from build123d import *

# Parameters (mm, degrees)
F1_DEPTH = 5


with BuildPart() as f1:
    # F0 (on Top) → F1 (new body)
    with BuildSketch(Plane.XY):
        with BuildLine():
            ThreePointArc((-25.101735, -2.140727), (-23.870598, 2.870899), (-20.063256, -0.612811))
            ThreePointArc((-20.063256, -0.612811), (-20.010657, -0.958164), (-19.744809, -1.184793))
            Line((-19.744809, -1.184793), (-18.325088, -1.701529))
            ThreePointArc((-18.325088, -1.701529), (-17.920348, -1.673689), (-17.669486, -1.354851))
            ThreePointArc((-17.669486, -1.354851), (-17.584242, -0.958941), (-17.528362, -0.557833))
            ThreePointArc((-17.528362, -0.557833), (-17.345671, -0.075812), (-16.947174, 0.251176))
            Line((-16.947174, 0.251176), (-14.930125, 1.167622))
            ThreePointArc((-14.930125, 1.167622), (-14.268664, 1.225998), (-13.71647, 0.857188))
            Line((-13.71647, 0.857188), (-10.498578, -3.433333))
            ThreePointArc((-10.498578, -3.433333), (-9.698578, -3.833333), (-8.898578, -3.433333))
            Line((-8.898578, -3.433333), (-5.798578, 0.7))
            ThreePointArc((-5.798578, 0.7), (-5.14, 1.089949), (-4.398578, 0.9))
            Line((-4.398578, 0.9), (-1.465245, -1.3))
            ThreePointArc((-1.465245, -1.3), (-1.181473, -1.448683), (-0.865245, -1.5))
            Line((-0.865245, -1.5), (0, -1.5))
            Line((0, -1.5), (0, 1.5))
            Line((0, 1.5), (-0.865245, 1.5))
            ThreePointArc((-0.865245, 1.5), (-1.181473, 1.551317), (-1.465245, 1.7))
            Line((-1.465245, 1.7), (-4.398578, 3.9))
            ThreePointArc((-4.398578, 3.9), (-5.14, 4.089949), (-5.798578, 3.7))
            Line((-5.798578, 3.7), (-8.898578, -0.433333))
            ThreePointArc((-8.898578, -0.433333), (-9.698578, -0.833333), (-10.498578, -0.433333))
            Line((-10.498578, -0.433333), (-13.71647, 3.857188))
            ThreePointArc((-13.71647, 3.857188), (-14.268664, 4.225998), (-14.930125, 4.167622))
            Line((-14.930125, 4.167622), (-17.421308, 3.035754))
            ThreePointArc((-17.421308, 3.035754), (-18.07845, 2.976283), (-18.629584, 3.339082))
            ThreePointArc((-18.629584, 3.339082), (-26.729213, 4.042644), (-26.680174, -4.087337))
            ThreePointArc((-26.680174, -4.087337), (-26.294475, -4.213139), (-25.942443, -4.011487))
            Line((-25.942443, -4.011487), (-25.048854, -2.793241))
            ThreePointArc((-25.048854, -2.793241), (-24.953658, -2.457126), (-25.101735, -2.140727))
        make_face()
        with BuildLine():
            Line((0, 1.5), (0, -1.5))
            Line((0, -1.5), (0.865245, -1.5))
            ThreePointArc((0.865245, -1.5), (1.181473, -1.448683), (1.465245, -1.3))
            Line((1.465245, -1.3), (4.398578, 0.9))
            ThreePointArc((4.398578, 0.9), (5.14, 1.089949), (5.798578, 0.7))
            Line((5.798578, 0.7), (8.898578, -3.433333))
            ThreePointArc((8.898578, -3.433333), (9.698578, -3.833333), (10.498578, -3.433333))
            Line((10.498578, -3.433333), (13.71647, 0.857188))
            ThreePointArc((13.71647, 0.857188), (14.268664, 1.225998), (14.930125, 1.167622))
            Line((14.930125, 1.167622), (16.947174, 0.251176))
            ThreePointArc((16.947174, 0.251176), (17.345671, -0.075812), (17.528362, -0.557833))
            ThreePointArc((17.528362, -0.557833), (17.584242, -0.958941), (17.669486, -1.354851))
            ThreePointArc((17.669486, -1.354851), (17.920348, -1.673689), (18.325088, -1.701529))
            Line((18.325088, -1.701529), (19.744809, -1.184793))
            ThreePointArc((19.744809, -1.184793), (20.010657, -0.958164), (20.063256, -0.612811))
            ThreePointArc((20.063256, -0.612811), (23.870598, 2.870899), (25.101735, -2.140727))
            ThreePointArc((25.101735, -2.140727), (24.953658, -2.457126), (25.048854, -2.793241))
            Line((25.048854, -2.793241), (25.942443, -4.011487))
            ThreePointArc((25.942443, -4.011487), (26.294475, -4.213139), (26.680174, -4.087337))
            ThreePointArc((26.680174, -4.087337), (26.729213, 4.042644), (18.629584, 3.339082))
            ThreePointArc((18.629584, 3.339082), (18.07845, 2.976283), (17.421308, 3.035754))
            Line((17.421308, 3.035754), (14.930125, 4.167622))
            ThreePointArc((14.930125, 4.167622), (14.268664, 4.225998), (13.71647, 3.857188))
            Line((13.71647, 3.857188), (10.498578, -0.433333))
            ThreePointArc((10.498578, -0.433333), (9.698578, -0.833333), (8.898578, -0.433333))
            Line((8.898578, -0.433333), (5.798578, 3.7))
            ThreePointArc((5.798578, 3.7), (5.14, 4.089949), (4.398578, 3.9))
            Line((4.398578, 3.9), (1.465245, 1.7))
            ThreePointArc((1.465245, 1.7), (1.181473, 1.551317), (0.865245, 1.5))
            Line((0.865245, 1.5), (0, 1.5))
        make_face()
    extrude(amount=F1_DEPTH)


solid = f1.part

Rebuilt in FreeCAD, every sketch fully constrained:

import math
import FreeCAD as App
import Part
import Sketcher
from FreeCAD import Vector
Q = App.Units.Quantity

doc = App.newDocument("Part")
body = doc.addObject("PartDesign::Body", "Body")

# Sketch on XY plane
sketch1 = body.newObject("Sketcher::SketchObject", "Sketch")
sketch1.AttachmentSupport = (doc.getObject("XY_Plane"), [""])
sketch1.MapMode = "FlatFace"
sketch1.addGeometry([
    Part.ArcOfCircle(Part.Circle(Vector(-23, 0, 0), Vector(0, 0, 1), 3), math.radians(-12), math.radians(226)),  # 0
    Part.ArcOfCircle(Part.Circle(Vector(-19.57, -0.71, 0), Vector(0, 0, 1), 0.5), math.radians(168), math.radians(250)),  # 1
    Part.LineSegment(Vector(-19.74, -1.18, 0), Vector(-18.33, -1.7, 0)),  # 2
    Part.ArcOfCircle(Part.Circle(Vector(-18.15, -1.23, 0), Vector(0, 0, 1), 0.5), math.radians(-110), math.radians(-14)),  # 3
    Part.ArcOfCircle(Part.Circle(Vector(-23, 0, 0), Vector(0, 0, 1), 5.5), math.radians(-14.26), math.radians(-5.82)),  # 4
    Part.ArcOfCircle(Part.Circle(Vector(-16.53, -0.66, 0), Vector(0, 0, 1), 1), math.radians(114), math.radians(174)),  # 5
    Part.LineSegment(Vector(-16.95, 0.25, 0), Vector(-14.93, 1.17, 0)),  # 6
    Part.ArcOfCircle(Part.Circle(Vector(-14.52, 0.26, 0), Vector(0, 0, 1), 1), math.radians(37), math.radians(114)),  # 7
    Part.LineSegment(Vector(-13.72, 0.86, 0), Vector(-10.5, -3.43, 0)),  # 8
    Part.ArcOfCircle(Part.Circle(Vector(-9.7, -2.83, 0), Vector(0, 0, 1), 1), math.radians(-143), math.radians(-37)),  # 9
    Part.LineSegment(Vector(-8.9, -3.43, 0), Vector(-5.8, 0.7, 0)),  # 10
    Part.ArcOfCircle(Part.Circle(Vector(-5, 0.1, 0), Vector(0, 0, 1), 1), math.radians(53), math.radians(143)),  # 11
    Part.LineSegment(Vector(-4.4, 0.9, 0), Vector(-1.47, -1.3, 0)),  # 12
    Part.ArcOfCircle(Part.Circle(Vector(-0.87, -0.5, 0), Vector(0, 0, 1), 1), math.radians(-127), math.radians(-90)),  # 13
    Part.LineSegment(Vector(-0.87, -1.5, 0), Vector(0.87, -1.5, 0)),  # 14
    Part.ArcOfCircle(Part.Circle(Vector(0.87, -0.5, 0), Vector(0, 0, 1), 1), math.radians(-90), math.radians(-53)),  # 15
    Part.LineSegment(Vector(1.47, -1.3, 0), Vector(4.4, 0.9, 0)),  # 16
    Part.ArcOfCircle(Part.Circle(Vector(5, 0.1, 0), Vector(0, 0, 1), 1), math.radians(37), math.radians(127)),  # 17
    Part.LineSegment(Vector(5.8, 0.7, 0), Vector(8.9, -3.43, 0)),  # 18
    Part.ArcOfCircle(Part.Circle(Vector(9.7, -2.83, 0), Vector(0, 0, 1), 1), math.radians(-143), math.radians(-37)),  # 19
    Part.LineSegment(Vector(10.5, -3.43, 0), Vector(13.72, 0.86, 0)),  # 20
    Part.ArcOfCircle(Part.Circle(Vector(14.52, 0.26, 0), Vector(0, 0, 1), 1), math.radians(66), math.radians(143)),  # 21
    Part.LineSegment(Vector(14.93, 1.17, 0), Vector(16.95, 0.25, 0)),  # 22
    Part.ArcOfCircle(Part.Circle(Vector(16.53, -0.66, 0), Vector(0, 0, 1), 1), math.radians(6), math.radians(66)),  # 23
    Part.ArcOfCircle(Part.Circle(Vector(23, 0, 0), Vector(0, 0, 1), 5.5), math.radians(-174.18), math.radians(-165.74)),  # 24
    Part.ArcOfCircle(Part.Circle(Vector(18.15, -1.23, 0), Vector(0, 0, 1), 0.5), math.radians(-166), math.radians(-70)),  # 25
    Part.LineSegment(Vector(18.33, -1.7, 0), Vector(19.74, -1.18, 0)),  # 26
    Part.ArcOfCircle(Part.Circle(Vector(19.57, -0.71, 0), Vector(0, 0, 1), 0.5), math.radians(-70), math.radians(12)),  # 27
    Part.ArcOfCircle(Part.Circle(Vector(23, 0, 0), Vector(0, 0, 1), 3), math.radians(-46), math.radians(192)),  # 28
    Part.ArcOfCircle(Part.Circle(Vector(25.45, -2.5, 0), Vector(0, 0, 1), 0.5), math.radians(134), math.radians(216)),  # 29
    Part.LineSegment(Vector(25.05, -2.79, 0), Vector(25.94, -4.01, 0)),  # 30
    Part.ArcOfCircle(Part.Circle(Vector(26.35, -3.72, 0), Vector(0, 0, 1), 0.5), math.radians(-144), math.radians(-48)),  # 31
    Part.ArcOfCircle(Part.Circle(Vector(23, 0, 0), Vector(0, 0, 1), 5.5), math.radians(-48), math.radians(143)),  # 32
    Part.ArcOfCircle(Part.Circle(Vector(17.83, 3.95, 0), Vector(0, 0, 1), 1), math.radians(-114), math.radians(-37)),  # 33
    Part.LineSegment(Vector(17.42, 3.04, 0), Vector(14.93, 4.17, 0)),  # 34
    Part.ArcOfCircle(Part.Circle(Vector(14.52, 3.26, 0), Vector(0, 0, 1), 1), math.radians(66), math.radians(143)),  # 35
    Part.LineSegment(Vector(13.72, 3.86, 0), Vector(10.5, -0.43, 0)),  # 36
    Part.ArcOfCircle(Part.Circle(Vector(9.7, 0.17, 0), Vector(0, 0, 1), 1), math.radians(-143), math.radians(-37)),  # 37
    Part.LineSegment(Vector(8.9, -0.43, 0), Vector(5.8, 3.7, 0)),  # 38
    Part.ArcOfCircle(Part.Circle(Vector(5, 3.1, 0), Vector(0, 0, 1), 1), math.radians(37), math.radians(127)),  # 39
    Part.LineSegment(Vector(4.4, 3.9, 0), Vector(1.47, 1.7, 0)),  # 40
    Part.ArcOfCircle(Part.Circle(Vector(0.87, 2.5, 0), Vector(0, 0, 1), 1), math.radians(-90), math.radians(-53)),  # 41
    Part.LineSegment(Vector(0.87, 1.5, 0), Vector(-0.87, 1.5, 0)),  # 42
    Part.ArcOfCircle(Part.Circle(Vector(-0.87, 2.5, 0), Vector(0, 0, 1), 1), math.radians(-127), math.radians(-90)),  # 43
    Part.LineSegment(Vector(-1.47, 1.7, 0), Vector(-4.4, 3.9, 0)),  # 44
    Part.ArcOfCircle(Part.Circle(Vector(-5, 3.1, 0), Vector(0, 0, 1), 1), math.radians(53), math.radians(143)),  # 45
    Part.LineSegment(Vector(-5.8, 3.7, 0), Vector(-8.9, -0.43, 0)),  # 46
    Part.ArcOfCircle(Part.Circle(Vector(-9.7, 0.17, 0), Vector(0, 0, 1), 1), math.radians(-143), math.radians(-37)),  # 47
    Part.LineSegment(Vector(-10.5, -0.43, 0), Vector(-13.72, 3.86, 0)),  # 48
    Part.ArcOfCircle(Part.Circle(Vector(-14.52, 3.26, 0), Vector(0, 0, 1), 1), math.radians(37), math.radians(114)),  # 49
    Part.LineSegment(Vector(-14.93, 4.17, 0), Vector(-17.42, 3.04, 0)),  # 50
    Part.ArcOfCircle(Part.Circle(Vector(-17.83, 3.95, 0), Vector(0, 0, 1), 1), math.radians(-143), math.radians(-66)),  # 51
    Part.ArcOfCircle(Part.Circle(Vector(-23, 0, 0), Vector(0, 0, 1), 5.5), math.radians(37), math.radians(228)),  # 52
    Part.ArcOfCircle(Part.Circle(Vector(-26.35, -3.72, 0), Vector(0, 0, 1), 0.5), math.radians(-132), math.radians(-36)),  # 53
    Part.LineSegment(Vector(-25.94, -4.01, 0), Vector(-25.05, -2.79, 0)),  # 54
    Part.ArcOfCircle(Part.Circle(Vector(-25.45, -2.5, 0), Vector(0, 0, 1), 0.5), math.radians(-36), math.radians(46)),  # 55
], False)
sketch1.addConstraint([
    Sketcher.Constraint("Tangent", 0, 1, 1, 1),
    Sketcher.Constraint("Tangent", 1, 2, 2, 1),
    Sketcher.Constraint("Coincident", 2, 2, 3, 1),
    Sketcher.Constraint("Tangent", 3, 2, 4, 1),
    Sketcher.Constraint("Tangent", 4, 2, 5, 2),
    Sketcher.Constraint("Tangent", 5, 1, 6, 1),
    Sketcher.Constraint("Tangent", 6, 2, 7, 2),
    Sketcher.Constraint("Tangent", 7, 1, 8, 1),
    Sketcher.Constraint("Tangent", 8, 2, 9, 1),
    Sketcher.Constraint("Tangent", 9, 2, 10, 1),
    Sketcher.Constraint("Tangent", 10, 2, 11, 2),
    Sketcher.Constraint("Tangent", 11, 1, 12, 1),
    Sketcher.Constraint("Tangent", 12, 2, 13, 1),
    Sketcher.Constraint("Tangent", 13, 2, 14, 1),
    Sketcher.Constraint("Tangent", 14, 2, 15, 1),
    Sketcher.Constraint("Tangent", 15, 2, 16, 1),
    Sketcher.Constraint("Tangent", 16, 2, 17, 2),
    Sketcher.Constraint("Tangent", 17, 1, 18, 1),
    Sketcher.Constraint("Tangent", 18, 2, 19, 1),
    Sketcher.Constraint("Tangent", 19, 2, 20, 1),
    Sketcher.Constraint("Tangent", 20, 2, 21, 2),
    Sketcher.Constraint("Tangent", 21, 1, 22, 1),
    Sketcher.Constraint("Tangent", 22, 2, 23, 2),
    Sketcher.Constraint("Tangent", 23, 1, 24, 1),
    Sketcher.Constraint("Tangent", 24, 2, 25, 1),
    Sketcher.Constraint("Coincident", 25, 2, 26, 1),
    Sketcher.Constraint("Tangent", 26, 2, 27, 1),
    Sketcher.Constraint("Tangent", 27, 2, 28, 2),
    Sketcher.Constraint("Tangent", 28, 1, 29, 1),
    Sketcher.Constraint("Tangent", 29, 2, 30, 1),
    Sketcher.Constraint("Coincident", 30, 2, 31, 1),
    Sketcher.Constraint("Tangent", 31, 2, 32, 1),
    Sketcher.Constraint("Tangent", 32, 2, 33, 2),
    Sketcher.Constraint("Tangent", 33, 1, 34, 1),
    Sketcher.Constraint("Tangent", 34, 2, 35, 1),
    Sketcher.Constraint("Tangent", 35, 2, 36, 1),
    Sketcher.Constraint("Tangent", 36, 2, 37, 2),
    Sketcher.Constraint("Tangent", 37, 1, 38, 1),
    Sketcher.Constraint("Tangent", 38, 2, 39, 1),
    Sketcher.Constraint("Tangent", 39, 2, 40, 1),
    Sketcher.Constraint("Tangent", 40, 2, 41, 2),
    Sketcher.Constraint("Tangent", 41, 1, 42, 1),
    Sketcher.Constraint("Tangent", 42, 2, 43, 2),
    Sketcher.Constraint("Tangent", 43, 1, 44, 1),
    Sketcher.Constraint("Tangent", 44, 2, 45, 1),
    Sketcher.Constraint("Tangent", 45, 2, 46, 1),
    Sketcher.Constraint("Tangent", 46, 2, 47, 2),
    Sketcher.Constraint("Tangent", 47, 1, 48, 1),
    Sketcher.Constraint("Tangent", 48, 2, 49, 1),
    Sketcher.Constraint("Tangent", 49, 2, 50, 1),
    Sketcher.Constraint("Tangent", 50, 2, 51, 2),
    Sketcher.Constraint("Tangent", 51, 1, 52, 1),
    Sketcher.Constraint("Tangent", 52, 2, 53, 1),
    Sketcher.Constraint("Coincident", 53, 2, 54, 1),
    Sketcher.Constraint("Tangent", 54, 2, 55, 1),
    Sketcher.Constraint("Tangent", 55, 2, 0, 2),
    Sketcher.Constraint("Horizontal", 14),
    Sketcher.Constraint("Horizontal", 42),
    Sketcher.Constraint("Coincident", 32, 3, 28, 3),
    Sketcher.Constraint("Coincident", 52, 3, 0, 3),
    Sketcher.Constraint("Equal", 1, 3),
    Sketcher.Constraint("Equal", 5, 7),
    Sketcher.Constraint("Equal", 7, 9),
    Sketcher.Constraint("Equal", 9, 11),
    Sketcher.Constraint("Equal", 13, 15),
    Sketcher.Constraint("Equal", 11, 17),
    Sketcher.Constraint("Equal", 17, 19),
    Sketcher.Constraint("Equal", 19, 21),
    Sketcher.Constraint("Equal", 21, 23),
    Sketcher.Constraint("Equal", 4, 24),
    Sketcher.Constraint("Equal", 3, 25),
    Sketcher.Constraint("Equal", 25, 27),
    Sketcher.Constraint("Equal", 0, 28),
    Sketcher.Constraint("Equal", 27, 29),
    Sketcher.Constraint("Equal", 29, 31),
    Sketcher.Constraint("Equal", 23, 33),
    Sketcher.Constraint("Equal", 33, 35),
    Sketcher.Constraint("Equal", 35, 37),
    Sketcher.Constraint("Equal", 37, 39),
    Sketcher.Constraint("Equal", 15, 41),
    Sketcher.Constraint("Equal", 41, 43),
    Sketcher.Constraint("Equal", 39, 45),
    Sketcher.Constraint("Equal", 45, 47),
    Sketcher.Constraint("Equal", 47, 49),
    Sketcher.Constraint("Equal", 49, 51),
    Sketcher.Constraint("Equal", 32, 52),
    Sketcher.Constraint("Equal", 31, 53),
    Sketcher.Constraint("Equal", 53, 55),
    Sketcher.Constraint("Symmetric", 0, 3, 28, 3, -1, 1),
    Sketcher.Constraint("Symmetric", 13, 2, 41, 1, -1, 1),
    Sketcher.Constraint("Symmetric", 11, 3, 17, 3, -2),
    Sketcher.Constraint("Symmetric", 9, 3, 19, 3, -2),
    Sketcher.Constraint("Symmetric", 7, 3, 21, 3, -2),
    Sketcher.Constraint("Symmetric", 5, 3, 23, 3, -2),
    Sketcher.Constraint("Symmetric", 3, 3, 25, 3, -2),
    Sketcher.Constraint("Symmetric", 1, 3, 27, 3, -2),
    Sketcher.Constraint("Symmetric", 39, 3, 45, 3, -2),
    Sketcher.Constraint("Symmetric", 37, 3, 47, 3, -2),
    Sketcher.Constraint("Symmetric", 35, 3, 49, 3, -2),
    Sketcher.Constraint("Symmetric", 30, 2, 53, 2, -2),
    Sketcher.Constraint("Perpendicular", 10, 12),
    Sketcher.Constraint("Perpendicular", 8, 16),
    Sketcher.Constraint("Perpendicular", 16, 18),
    Sketcher.Constraint("Parallel", 22, 34),
    Sketcher.Constraint("Parallel", 20, 36),
    Sketcher.Constraint("Parallel", 18, 38),
    Sketcher.Constraint("Perpendicular", 38, 40),
    Sketcher.Constraint("Perpendicular", 36, 44),
    Sketcher.Constraint("Parallel", 6, 50),
    Sketcher.Constraint("Horizontal", 29, 3, 55, 3),
    Sketcher.Constraint("Horizontal", 2, 2, 25, 2),
    Sketcher.Constraint("Vertical", 21, 3, 35, 3),
    Sketcher.Constraint("Vertical", 19, 3, 37, 3),
    Sketcher.Constraint("Vertical", 17, 3, 39, 3),
    Sketcher.Constraint("Equal", 26, 30),
    Sketcher.Constraint("Radius", 0, 3.0),
    Sketcher.Constraint("Radius", 5, 1.0),
    Sketcher.Constraint("Radius", 1, 0.500001),
    Sketcher.Constraint("Radius", 32, 5.5),
    Sketcher.Constraint("Angle", 2, Q("-19.999993 deg")),
    Sketcher.Constraint("DistanceX", 0, 3, -1, 1, 23.0),
    Sketcher.Constraint("DistanceY", -1, 1, 11, 3, 0.099999),
    Sketcher.Constraint("DistanceY", -1, 1, 39, 3, 3.099999),
    Sketcher.Constraint("DistanceY", -1, 1, 10, 2, 0.7),
    Sketcher.Constraint("DistanceY", 12, 2, -1, 1, 1.3),
    Sketcher.Constraint("Radius", 4, 5.499928),
    Sketcher.Constraint("DistanceX", 14, 1, 14, 2, 1.73049),
    Sketcher.Constraint("Distance", 6, 2.215482),
    Sketcher.Constraint("Distance", 34, 2.73626),
    Sketcher.Constraint("DistanceX", 3, 3, -1, 1, 18.154079),
    Sketcher.Constraint("DistanceY", 3, 3, -1, 1, 1.231681),
    Sketcher.Constraint("DistanceX", 4, 3, -1, 1, 22.999929),
    Sketcher.Constraint("DistanceX", 5, 3, -1, 1, 16.533519),
    Sketcher.Constraint("DistanceY", 31, 3, -1, 1, 3.715761),
    Sketcher.Constraint("DistanceX", 2, 2, -1, 1, 18.325088),
    Sketcher.Constraint("DistanceY", 29, 2, -1, 1, 2.793241),
])
pad1 = body.newObject("PartDesign::Pad", "Pad")
pad1.Profile = sketch1
pad1.Length = 5

doc.recompute()
